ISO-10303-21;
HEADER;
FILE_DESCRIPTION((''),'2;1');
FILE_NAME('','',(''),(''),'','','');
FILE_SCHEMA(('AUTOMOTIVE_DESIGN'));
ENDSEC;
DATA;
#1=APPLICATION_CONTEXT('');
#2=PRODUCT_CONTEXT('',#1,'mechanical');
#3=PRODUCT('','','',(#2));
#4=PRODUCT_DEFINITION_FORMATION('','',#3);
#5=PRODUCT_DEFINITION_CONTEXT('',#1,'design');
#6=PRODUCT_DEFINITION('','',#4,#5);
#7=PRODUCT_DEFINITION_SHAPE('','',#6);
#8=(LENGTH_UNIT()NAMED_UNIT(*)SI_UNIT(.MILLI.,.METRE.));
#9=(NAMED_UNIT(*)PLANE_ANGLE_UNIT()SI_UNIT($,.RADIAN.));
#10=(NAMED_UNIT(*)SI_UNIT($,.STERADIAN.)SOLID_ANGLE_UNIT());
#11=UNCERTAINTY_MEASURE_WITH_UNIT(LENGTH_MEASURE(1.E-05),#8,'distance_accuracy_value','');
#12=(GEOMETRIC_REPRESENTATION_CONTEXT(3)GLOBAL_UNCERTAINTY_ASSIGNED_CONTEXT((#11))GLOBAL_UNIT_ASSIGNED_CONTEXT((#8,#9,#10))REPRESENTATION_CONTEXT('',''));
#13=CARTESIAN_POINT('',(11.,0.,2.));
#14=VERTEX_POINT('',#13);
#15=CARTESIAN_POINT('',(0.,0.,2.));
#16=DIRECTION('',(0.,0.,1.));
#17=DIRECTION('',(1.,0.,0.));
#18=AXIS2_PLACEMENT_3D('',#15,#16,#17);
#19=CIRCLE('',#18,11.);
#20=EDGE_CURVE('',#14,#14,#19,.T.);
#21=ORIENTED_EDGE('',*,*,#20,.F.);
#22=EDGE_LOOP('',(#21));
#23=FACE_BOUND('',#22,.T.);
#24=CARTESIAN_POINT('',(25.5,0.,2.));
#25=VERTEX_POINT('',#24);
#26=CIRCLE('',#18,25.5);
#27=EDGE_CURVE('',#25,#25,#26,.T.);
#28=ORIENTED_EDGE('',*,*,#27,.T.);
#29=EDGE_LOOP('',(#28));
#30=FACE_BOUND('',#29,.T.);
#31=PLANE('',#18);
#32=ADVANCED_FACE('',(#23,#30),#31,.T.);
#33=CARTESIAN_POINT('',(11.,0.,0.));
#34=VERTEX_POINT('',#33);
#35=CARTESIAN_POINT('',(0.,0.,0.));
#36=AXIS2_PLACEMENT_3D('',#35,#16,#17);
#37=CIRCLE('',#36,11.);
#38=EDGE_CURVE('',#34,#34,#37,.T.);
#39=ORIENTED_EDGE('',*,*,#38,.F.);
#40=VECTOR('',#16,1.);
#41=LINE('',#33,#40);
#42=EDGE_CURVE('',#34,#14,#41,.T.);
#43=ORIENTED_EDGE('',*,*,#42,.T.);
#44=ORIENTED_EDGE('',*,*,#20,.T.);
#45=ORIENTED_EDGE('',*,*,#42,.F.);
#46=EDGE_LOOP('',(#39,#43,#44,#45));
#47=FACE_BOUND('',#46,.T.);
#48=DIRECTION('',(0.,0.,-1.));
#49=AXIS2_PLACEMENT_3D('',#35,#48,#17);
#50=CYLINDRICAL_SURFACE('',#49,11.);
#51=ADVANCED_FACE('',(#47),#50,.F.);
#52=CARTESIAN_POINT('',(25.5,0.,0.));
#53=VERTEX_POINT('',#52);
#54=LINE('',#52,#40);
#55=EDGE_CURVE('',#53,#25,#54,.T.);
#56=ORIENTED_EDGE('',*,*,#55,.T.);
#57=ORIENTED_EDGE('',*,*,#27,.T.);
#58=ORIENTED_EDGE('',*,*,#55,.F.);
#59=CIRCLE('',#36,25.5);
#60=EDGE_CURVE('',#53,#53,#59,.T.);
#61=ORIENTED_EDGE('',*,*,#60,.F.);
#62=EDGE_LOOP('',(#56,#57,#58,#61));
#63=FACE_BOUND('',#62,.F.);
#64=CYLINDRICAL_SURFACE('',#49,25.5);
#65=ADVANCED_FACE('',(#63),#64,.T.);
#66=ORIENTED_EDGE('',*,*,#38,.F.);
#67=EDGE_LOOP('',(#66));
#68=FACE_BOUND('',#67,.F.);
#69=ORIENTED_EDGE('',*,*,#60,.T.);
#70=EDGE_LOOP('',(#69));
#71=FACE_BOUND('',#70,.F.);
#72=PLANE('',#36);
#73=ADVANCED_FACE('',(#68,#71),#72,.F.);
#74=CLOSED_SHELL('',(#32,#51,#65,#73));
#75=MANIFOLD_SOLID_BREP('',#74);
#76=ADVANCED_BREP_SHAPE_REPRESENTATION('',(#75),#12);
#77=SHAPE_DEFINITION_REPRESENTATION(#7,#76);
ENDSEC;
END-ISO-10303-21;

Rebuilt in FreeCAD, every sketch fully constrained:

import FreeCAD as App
import Part
import Sketcher

V = App.Vector

doc = App.newDocument("Part")
body = doc.addObject("PartDesign::Body", "Body")

# Sketch on XY plane
sketch1 = body.newObject("Sketcher::SketchObject", "Sketch")
sketch1.AttachmentSupport = (doc.getObject("XY_Plane"), [""])
sketch1.MapMode = "FlatFace"
sketch1.addGeometry([
    Part.Circle(V(0, 0, 0), V(0, 0, 1), 25.5),
    Part.Circle(V(0, 0, 0), V(0, 0, 1), 11),
], False)
sketch1.addConstraint([
    Sketcher.Constraint("Coincident", 0, 3, -1, 1),
    Sketcher.Constraint("Coincident", 1, 3, -1, 1),
    Sketcher.Constraint("Diameter", 0, 51.0),
    Sketcher.Constraint("Diameter", 1, 22.0),
])
pad1 = body.newObject("PartDesign::Pad", "Pad")
pad1.Profile = sketch1
pad1.Length = 2

doc.recompute()
